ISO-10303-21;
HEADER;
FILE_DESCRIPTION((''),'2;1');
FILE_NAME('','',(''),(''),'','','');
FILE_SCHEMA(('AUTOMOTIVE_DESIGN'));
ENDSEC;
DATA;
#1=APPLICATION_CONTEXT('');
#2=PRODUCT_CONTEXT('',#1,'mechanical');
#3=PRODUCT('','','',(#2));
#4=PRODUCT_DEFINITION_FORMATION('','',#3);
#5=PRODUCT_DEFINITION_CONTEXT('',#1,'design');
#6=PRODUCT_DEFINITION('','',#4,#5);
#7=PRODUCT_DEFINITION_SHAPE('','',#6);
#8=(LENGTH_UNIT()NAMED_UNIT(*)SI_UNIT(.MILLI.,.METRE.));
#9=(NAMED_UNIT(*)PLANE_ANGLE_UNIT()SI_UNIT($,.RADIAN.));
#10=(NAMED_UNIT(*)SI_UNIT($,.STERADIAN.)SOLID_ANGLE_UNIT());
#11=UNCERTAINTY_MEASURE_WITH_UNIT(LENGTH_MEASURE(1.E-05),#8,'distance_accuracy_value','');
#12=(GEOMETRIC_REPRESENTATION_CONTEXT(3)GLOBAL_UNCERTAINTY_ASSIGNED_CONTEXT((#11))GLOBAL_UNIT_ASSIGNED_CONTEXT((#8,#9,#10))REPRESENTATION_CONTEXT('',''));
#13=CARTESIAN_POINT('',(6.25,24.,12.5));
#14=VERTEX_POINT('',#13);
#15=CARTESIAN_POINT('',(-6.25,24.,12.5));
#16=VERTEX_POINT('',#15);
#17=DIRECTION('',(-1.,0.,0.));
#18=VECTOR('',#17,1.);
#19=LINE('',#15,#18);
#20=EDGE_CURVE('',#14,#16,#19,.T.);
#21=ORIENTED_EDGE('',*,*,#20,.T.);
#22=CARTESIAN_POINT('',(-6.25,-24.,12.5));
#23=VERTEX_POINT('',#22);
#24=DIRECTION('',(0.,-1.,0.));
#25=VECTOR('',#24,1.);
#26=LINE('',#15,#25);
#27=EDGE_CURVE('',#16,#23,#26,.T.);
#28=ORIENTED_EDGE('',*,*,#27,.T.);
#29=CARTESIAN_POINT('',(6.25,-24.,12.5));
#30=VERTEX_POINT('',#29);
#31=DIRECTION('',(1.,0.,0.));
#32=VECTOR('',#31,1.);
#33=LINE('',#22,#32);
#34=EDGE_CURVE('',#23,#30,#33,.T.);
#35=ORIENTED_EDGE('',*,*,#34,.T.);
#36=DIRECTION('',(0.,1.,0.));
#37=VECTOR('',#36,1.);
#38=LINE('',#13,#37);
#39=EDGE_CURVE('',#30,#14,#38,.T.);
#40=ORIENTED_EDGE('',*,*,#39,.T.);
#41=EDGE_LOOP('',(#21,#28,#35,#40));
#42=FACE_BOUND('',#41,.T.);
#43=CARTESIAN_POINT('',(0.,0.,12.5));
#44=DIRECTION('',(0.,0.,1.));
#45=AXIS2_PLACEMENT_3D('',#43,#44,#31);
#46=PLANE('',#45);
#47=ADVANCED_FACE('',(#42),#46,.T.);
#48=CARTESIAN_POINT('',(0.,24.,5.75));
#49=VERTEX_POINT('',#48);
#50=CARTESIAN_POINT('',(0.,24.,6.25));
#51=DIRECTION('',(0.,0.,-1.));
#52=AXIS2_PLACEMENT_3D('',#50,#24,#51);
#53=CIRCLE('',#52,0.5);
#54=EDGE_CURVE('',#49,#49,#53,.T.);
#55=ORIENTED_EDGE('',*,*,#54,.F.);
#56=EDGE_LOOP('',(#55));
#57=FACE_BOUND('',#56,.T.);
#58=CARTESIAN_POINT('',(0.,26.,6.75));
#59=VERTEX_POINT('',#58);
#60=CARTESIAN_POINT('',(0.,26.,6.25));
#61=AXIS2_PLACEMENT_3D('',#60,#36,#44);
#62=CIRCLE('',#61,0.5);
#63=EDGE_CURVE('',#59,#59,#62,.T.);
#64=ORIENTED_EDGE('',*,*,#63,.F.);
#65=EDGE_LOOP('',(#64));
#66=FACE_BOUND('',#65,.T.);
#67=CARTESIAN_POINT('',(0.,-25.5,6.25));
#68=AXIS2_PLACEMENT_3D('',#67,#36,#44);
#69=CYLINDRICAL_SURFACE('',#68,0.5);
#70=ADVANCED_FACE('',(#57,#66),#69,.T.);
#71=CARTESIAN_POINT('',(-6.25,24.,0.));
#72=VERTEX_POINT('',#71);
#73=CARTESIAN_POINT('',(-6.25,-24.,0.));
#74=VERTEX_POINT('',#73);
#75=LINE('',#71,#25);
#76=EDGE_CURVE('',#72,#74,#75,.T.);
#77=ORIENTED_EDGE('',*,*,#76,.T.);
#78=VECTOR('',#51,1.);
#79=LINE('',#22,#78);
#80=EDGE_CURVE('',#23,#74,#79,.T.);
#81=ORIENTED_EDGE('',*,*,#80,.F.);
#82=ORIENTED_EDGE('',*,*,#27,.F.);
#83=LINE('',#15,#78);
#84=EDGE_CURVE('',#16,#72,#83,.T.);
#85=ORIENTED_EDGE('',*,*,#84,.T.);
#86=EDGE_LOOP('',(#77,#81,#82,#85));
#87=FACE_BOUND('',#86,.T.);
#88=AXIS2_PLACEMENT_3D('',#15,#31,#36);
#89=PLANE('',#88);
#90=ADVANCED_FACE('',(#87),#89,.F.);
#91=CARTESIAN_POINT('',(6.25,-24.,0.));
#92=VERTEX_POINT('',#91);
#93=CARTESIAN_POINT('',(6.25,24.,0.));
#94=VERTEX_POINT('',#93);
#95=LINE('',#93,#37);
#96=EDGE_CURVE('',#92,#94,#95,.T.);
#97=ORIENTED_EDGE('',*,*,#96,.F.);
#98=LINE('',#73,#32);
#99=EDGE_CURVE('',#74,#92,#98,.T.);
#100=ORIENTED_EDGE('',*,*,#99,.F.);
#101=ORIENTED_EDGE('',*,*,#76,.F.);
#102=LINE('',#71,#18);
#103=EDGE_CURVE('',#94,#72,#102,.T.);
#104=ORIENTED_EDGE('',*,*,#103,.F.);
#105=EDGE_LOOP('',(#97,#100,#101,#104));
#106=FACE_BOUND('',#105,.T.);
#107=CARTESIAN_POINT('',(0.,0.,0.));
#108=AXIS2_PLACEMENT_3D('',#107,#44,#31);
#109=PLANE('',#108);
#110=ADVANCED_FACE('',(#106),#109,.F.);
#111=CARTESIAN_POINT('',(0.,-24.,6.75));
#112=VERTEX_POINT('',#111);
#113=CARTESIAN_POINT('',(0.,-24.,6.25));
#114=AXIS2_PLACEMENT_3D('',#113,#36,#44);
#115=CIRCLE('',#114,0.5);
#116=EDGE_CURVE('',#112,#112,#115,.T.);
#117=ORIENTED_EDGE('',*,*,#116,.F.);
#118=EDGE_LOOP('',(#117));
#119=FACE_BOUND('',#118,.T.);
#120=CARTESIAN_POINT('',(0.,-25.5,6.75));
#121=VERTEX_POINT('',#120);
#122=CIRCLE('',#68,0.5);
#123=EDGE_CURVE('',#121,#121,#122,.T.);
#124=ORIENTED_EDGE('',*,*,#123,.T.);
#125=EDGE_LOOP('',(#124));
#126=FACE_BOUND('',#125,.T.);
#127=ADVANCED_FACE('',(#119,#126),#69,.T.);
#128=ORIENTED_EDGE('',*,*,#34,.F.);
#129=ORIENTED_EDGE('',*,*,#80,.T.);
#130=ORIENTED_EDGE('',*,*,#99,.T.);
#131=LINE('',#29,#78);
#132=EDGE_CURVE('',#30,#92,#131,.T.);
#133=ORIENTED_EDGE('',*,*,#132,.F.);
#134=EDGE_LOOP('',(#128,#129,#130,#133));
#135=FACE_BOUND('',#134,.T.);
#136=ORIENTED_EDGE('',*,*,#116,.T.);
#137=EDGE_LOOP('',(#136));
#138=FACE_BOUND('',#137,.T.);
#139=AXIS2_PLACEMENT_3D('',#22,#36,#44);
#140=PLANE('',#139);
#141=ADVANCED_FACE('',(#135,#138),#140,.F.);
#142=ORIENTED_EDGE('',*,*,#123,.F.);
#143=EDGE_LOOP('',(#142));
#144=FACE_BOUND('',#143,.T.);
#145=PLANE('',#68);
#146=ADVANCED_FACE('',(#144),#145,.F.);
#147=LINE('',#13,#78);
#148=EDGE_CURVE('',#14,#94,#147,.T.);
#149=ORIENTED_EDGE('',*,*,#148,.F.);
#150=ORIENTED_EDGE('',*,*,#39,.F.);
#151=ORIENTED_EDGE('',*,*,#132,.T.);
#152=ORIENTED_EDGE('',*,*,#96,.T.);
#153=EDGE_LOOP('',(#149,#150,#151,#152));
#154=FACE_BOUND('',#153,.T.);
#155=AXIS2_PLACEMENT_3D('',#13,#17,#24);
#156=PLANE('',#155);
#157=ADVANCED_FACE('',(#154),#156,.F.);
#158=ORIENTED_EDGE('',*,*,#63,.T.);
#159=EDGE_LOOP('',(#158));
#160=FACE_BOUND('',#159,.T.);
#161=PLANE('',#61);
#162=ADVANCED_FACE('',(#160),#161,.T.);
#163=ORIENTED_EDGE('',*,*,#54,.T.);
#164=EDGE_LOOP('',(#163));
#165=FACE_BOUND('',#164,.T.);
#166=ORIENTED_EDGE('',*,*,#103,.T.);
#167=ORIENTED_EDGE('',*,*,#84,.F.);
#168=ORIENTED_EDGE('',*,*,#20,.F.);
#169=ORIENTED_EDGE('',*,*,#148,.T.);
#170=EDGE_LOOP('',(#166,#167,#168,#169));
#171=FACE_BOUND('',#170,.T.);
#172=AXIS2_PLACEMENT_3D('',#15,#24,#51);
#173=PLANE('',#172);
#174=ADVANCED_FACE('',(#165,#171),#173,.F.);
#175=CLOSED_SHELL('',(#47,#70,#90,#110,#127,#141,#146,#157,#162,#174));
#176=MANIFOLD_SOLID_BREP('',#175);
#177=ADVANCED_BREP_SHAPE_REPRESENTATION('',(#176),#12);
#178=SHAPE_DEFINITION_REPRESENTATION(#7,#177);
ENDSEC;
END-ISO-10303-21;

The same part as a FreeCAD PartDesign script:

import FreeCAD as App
import Part
import Sketcher
Q = App.Units.Quantity

doc = App.newDocument("Part")
body = doc.addObject("PartDesign::Body", "Body")

# Sketch on XY plane
sketch1 = body.newObject("Sketcher::SketchObject", "Sketch")
sketch1.AttachmentSupport = (doc.getObject("XY_Plane"), [""])
sketch1.MapMode = "FlatFace"
sketch1.addGeometry([
    Part.LineSegment(App.Vector(-6, 24, 0), App.Vector(-6, -24, 0)),
    Part.LineSegment(App.Vector(-6, -24, 0), App.Vector(6, -24, 0)),
    Part.LineSegment(App.Vector(6, -24, 0), App.Vector(6, 24, 0)),
    Part.LineSegment(App.Vector(6, 24, 0), App.Vector(-6, 24, 0)),
], False)
sketch1.addConstraint([
    Sketcher.Constraint("Coincident", 0, 2, 1, 1),
    Sketcher.Constraint("Coincident", 1, 2, 2, 1),
    Sketcher.Constraint("Coincident", 2, 2, 3, 1),
    Sketcher.Constraint("Coincident", 3, 2, 0, 1),
    Sketcher.Constraint("Vertical", 0),
    Sketcher.Constraint("Horizontal", 1),
    Sketcher.Constraint("Vertical", 2),
    Sketcher.Constraint("Horizontal", 3),
    Sketcher.Constraint("Symmetric", 0, 2, 2, 2, -1, 1),
    Sketcher.Constraint("DistanceY", 0, 2, 0, 1, Q("48 mm")),
    Sketcher.Constraint("DistanceX", 1, 1, 1, 2, Q("12.5 mm")),
])
pad1 = body.newObject("PartDesign::Pad", "Pad")
pad1.Profile = sketch1
pad1.Length = 12.5

# Sketch on XZ plane
sketch2 = body.newObject("Sketcher::SketchObject", "Sketch001")
sketch2.AttachmentSupport = (doc.getObject("XZ_Plane"), [""])
sketch2.MapMode = "FlatFace"
sketch2.AttachmentOffset = App.Placement(App.Vector(0, 0, -24), App.Rotation())
sketch2.addGeometry(Part.Circle(App.Vector(0, 6.2, 0), App.Vector(0, 0, 1), 0.5), False)
sketch2.addConstraint([
    Sketcher.Constraint("PointOnObject", 0, 3, -2),
    Sketcher.Constraint("Diameter", 0, Q("1 mm")),
    Sketcher.Constraint("DistanceY", -1, 1, 0, 3, Q("6.25 mm")),
])
pad2 = body.newObject("PartDesign::Pad", "Pad001")
pad2.Profile = sketch2
pad2.Type = "TwoLengths"
pad2.Length = 2
pad2.Length2 = 49.5
pad2.Reversed = True

doc.recompute()
